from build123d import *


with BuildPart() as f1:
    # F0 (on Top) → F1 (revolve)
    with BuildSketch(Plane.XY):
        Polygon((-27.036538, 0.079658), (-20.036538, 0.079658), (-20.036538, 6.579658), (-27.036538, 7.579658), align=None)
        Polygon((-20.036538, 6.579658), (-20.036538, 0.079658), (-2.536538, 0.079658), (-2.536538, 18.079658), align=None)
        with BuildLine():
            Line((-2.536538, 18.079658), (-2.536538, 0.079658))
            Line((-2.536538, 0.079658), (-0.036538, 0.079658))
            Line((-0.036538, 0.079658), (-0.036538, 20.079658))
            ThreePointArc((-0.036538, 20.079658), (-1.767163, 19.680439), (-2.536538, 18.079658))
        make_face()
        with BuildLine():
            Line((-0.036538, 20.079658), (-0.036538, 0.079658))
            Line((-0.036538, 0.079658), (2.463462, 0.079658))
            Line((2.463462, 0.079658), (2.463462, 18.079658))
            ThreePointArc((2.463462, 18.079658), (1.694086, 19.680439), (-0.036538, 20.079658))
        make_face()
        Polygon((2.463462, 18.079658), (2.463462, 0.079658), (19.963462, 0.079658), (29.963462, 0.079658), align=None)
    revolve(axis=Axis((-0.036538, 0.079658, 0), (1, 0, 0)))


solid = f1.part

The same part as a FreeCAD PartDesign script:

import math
import FreeCAD as App
import Part
import Sketcher

V = App.Vector

doc = App.newDocument("Part")
body = doc.addObject("PartDesign::Body", "Body")

sketch1 = doc.addObject("Sketcher::SketchObject", "Sketch")
body.addObject(sketch1)
sketch1.AttachmentSupport = (doc.XY_Plane, [""])
sketch1.MapMode = "FlatFace"
sketch1.addGeometry([
    Part.LineSegment(V(-27, 0.1, 0), V(30, 0.1, 0)),
    Part.LineSegment(V(30, 0.1, 0), V(2.5, 18.1, 0)),
    Part.ArcOfCircle(Part.Circle(V(0.4, 18.1, 0), V(0, 0, 1), 2.1), math.radians(0), math.radians(103)),
    Part.ArcOfCircle(Part.Circle(V(-0.5, 18.1, 0), V(0, 0, 1), 2), math.radians(77), math.radians(180)),
    Part.LineSegment(V(-2.5, 18.1, 0), V(-20, 6.6, 0)),
    Part.LineSegment(V(-20, 6.6, 0), V(-27, 7.6, 0)),
    Part.LineSegment(V(-27, 7.6, 0), V(-27, 0.1, 0)),
], False)
sketch1.addGeometry(Part.LineSegment(V(-27, 0.1, 0), V(30, 0.1, 0)), True)
sketch1.addConstraint([
    Sketcher.Constraint("Coincident", 0, 2, 1, 1),
    Sketcher.Constraint("Coincident", 1, 2, 2, 1),
    Sketcher.Constraint("Coincident", 2, 2, 3, 1),
    Sketcher.Constraint("Coincident", 3, 2, 4, 1),
    Sketcher.Constraint("Coincident", 4, 2, 5, 1),
    Sketcher.Constraint("Coincident", 5, 2, 6, 1),
    Sketcher.Constraint("Coincident", 6, 2, 0, 1),
    Sketcher.Constraint("Horizontal", 0),
    Sketcher.Constraint("Vertical", 6),
    Sketcher.Constraint("Horizontal", 7),
    Sketcher.Constraint("Coincident", 7, 1, 6, 2),
    Sketcher.Constraint("Equal", 2, 3),
    Sketcher.Constraint("Horizontal", 2, 3, 3, 3),
    Sketcher.Constraint("Horizontal", 3, 3, 1, 2),
    Sketcher.Constraint("Horizontal", 1, 2, 3, 2),
    Sketcher.Constraint("Equal", 0, 7),
    Sketcher.Constraint("DistanceX", 0, 1, 0, 2, 57.0),
    Sketcher.Constraint("Radius", 2, 2.050001),
    Sketcher.Constraint("DistanceY", 6, 2, 6, 1, 7.5),
    Sketcher.Constraint("DistanceY", 0, 2, 2, 3, 17.999999),
    Sketcher.Constraint("DistanceY", 3, 3, 2, 2, 2.0),
    Sketcher.Constraint("DistanceX", 2, 2, 0, 2, 30.0),
    Sketcher.Constraint("DistanceX", 4, 2, 2, 2, 20.0),
    Sketcher.Constraint("DistanceY", 4, 2, 5, 2, 1.0),
    Sketcher.Constraint("DistanceX", -1, 1, 2, 3, 0.413461),
    Sketcher.Constraint("DistanceY", -1, 1, 3, 3, 18.079658),
])
revolution = doc.addObject("PartDesign::Revolution", "Revolution")
body.addObject(revolution)
revolution.Profile = sketch1
revolution.ReferenceAxis = (sketch1, ["Axis0"])
revolution.Angle = 360

doc.recompute()
